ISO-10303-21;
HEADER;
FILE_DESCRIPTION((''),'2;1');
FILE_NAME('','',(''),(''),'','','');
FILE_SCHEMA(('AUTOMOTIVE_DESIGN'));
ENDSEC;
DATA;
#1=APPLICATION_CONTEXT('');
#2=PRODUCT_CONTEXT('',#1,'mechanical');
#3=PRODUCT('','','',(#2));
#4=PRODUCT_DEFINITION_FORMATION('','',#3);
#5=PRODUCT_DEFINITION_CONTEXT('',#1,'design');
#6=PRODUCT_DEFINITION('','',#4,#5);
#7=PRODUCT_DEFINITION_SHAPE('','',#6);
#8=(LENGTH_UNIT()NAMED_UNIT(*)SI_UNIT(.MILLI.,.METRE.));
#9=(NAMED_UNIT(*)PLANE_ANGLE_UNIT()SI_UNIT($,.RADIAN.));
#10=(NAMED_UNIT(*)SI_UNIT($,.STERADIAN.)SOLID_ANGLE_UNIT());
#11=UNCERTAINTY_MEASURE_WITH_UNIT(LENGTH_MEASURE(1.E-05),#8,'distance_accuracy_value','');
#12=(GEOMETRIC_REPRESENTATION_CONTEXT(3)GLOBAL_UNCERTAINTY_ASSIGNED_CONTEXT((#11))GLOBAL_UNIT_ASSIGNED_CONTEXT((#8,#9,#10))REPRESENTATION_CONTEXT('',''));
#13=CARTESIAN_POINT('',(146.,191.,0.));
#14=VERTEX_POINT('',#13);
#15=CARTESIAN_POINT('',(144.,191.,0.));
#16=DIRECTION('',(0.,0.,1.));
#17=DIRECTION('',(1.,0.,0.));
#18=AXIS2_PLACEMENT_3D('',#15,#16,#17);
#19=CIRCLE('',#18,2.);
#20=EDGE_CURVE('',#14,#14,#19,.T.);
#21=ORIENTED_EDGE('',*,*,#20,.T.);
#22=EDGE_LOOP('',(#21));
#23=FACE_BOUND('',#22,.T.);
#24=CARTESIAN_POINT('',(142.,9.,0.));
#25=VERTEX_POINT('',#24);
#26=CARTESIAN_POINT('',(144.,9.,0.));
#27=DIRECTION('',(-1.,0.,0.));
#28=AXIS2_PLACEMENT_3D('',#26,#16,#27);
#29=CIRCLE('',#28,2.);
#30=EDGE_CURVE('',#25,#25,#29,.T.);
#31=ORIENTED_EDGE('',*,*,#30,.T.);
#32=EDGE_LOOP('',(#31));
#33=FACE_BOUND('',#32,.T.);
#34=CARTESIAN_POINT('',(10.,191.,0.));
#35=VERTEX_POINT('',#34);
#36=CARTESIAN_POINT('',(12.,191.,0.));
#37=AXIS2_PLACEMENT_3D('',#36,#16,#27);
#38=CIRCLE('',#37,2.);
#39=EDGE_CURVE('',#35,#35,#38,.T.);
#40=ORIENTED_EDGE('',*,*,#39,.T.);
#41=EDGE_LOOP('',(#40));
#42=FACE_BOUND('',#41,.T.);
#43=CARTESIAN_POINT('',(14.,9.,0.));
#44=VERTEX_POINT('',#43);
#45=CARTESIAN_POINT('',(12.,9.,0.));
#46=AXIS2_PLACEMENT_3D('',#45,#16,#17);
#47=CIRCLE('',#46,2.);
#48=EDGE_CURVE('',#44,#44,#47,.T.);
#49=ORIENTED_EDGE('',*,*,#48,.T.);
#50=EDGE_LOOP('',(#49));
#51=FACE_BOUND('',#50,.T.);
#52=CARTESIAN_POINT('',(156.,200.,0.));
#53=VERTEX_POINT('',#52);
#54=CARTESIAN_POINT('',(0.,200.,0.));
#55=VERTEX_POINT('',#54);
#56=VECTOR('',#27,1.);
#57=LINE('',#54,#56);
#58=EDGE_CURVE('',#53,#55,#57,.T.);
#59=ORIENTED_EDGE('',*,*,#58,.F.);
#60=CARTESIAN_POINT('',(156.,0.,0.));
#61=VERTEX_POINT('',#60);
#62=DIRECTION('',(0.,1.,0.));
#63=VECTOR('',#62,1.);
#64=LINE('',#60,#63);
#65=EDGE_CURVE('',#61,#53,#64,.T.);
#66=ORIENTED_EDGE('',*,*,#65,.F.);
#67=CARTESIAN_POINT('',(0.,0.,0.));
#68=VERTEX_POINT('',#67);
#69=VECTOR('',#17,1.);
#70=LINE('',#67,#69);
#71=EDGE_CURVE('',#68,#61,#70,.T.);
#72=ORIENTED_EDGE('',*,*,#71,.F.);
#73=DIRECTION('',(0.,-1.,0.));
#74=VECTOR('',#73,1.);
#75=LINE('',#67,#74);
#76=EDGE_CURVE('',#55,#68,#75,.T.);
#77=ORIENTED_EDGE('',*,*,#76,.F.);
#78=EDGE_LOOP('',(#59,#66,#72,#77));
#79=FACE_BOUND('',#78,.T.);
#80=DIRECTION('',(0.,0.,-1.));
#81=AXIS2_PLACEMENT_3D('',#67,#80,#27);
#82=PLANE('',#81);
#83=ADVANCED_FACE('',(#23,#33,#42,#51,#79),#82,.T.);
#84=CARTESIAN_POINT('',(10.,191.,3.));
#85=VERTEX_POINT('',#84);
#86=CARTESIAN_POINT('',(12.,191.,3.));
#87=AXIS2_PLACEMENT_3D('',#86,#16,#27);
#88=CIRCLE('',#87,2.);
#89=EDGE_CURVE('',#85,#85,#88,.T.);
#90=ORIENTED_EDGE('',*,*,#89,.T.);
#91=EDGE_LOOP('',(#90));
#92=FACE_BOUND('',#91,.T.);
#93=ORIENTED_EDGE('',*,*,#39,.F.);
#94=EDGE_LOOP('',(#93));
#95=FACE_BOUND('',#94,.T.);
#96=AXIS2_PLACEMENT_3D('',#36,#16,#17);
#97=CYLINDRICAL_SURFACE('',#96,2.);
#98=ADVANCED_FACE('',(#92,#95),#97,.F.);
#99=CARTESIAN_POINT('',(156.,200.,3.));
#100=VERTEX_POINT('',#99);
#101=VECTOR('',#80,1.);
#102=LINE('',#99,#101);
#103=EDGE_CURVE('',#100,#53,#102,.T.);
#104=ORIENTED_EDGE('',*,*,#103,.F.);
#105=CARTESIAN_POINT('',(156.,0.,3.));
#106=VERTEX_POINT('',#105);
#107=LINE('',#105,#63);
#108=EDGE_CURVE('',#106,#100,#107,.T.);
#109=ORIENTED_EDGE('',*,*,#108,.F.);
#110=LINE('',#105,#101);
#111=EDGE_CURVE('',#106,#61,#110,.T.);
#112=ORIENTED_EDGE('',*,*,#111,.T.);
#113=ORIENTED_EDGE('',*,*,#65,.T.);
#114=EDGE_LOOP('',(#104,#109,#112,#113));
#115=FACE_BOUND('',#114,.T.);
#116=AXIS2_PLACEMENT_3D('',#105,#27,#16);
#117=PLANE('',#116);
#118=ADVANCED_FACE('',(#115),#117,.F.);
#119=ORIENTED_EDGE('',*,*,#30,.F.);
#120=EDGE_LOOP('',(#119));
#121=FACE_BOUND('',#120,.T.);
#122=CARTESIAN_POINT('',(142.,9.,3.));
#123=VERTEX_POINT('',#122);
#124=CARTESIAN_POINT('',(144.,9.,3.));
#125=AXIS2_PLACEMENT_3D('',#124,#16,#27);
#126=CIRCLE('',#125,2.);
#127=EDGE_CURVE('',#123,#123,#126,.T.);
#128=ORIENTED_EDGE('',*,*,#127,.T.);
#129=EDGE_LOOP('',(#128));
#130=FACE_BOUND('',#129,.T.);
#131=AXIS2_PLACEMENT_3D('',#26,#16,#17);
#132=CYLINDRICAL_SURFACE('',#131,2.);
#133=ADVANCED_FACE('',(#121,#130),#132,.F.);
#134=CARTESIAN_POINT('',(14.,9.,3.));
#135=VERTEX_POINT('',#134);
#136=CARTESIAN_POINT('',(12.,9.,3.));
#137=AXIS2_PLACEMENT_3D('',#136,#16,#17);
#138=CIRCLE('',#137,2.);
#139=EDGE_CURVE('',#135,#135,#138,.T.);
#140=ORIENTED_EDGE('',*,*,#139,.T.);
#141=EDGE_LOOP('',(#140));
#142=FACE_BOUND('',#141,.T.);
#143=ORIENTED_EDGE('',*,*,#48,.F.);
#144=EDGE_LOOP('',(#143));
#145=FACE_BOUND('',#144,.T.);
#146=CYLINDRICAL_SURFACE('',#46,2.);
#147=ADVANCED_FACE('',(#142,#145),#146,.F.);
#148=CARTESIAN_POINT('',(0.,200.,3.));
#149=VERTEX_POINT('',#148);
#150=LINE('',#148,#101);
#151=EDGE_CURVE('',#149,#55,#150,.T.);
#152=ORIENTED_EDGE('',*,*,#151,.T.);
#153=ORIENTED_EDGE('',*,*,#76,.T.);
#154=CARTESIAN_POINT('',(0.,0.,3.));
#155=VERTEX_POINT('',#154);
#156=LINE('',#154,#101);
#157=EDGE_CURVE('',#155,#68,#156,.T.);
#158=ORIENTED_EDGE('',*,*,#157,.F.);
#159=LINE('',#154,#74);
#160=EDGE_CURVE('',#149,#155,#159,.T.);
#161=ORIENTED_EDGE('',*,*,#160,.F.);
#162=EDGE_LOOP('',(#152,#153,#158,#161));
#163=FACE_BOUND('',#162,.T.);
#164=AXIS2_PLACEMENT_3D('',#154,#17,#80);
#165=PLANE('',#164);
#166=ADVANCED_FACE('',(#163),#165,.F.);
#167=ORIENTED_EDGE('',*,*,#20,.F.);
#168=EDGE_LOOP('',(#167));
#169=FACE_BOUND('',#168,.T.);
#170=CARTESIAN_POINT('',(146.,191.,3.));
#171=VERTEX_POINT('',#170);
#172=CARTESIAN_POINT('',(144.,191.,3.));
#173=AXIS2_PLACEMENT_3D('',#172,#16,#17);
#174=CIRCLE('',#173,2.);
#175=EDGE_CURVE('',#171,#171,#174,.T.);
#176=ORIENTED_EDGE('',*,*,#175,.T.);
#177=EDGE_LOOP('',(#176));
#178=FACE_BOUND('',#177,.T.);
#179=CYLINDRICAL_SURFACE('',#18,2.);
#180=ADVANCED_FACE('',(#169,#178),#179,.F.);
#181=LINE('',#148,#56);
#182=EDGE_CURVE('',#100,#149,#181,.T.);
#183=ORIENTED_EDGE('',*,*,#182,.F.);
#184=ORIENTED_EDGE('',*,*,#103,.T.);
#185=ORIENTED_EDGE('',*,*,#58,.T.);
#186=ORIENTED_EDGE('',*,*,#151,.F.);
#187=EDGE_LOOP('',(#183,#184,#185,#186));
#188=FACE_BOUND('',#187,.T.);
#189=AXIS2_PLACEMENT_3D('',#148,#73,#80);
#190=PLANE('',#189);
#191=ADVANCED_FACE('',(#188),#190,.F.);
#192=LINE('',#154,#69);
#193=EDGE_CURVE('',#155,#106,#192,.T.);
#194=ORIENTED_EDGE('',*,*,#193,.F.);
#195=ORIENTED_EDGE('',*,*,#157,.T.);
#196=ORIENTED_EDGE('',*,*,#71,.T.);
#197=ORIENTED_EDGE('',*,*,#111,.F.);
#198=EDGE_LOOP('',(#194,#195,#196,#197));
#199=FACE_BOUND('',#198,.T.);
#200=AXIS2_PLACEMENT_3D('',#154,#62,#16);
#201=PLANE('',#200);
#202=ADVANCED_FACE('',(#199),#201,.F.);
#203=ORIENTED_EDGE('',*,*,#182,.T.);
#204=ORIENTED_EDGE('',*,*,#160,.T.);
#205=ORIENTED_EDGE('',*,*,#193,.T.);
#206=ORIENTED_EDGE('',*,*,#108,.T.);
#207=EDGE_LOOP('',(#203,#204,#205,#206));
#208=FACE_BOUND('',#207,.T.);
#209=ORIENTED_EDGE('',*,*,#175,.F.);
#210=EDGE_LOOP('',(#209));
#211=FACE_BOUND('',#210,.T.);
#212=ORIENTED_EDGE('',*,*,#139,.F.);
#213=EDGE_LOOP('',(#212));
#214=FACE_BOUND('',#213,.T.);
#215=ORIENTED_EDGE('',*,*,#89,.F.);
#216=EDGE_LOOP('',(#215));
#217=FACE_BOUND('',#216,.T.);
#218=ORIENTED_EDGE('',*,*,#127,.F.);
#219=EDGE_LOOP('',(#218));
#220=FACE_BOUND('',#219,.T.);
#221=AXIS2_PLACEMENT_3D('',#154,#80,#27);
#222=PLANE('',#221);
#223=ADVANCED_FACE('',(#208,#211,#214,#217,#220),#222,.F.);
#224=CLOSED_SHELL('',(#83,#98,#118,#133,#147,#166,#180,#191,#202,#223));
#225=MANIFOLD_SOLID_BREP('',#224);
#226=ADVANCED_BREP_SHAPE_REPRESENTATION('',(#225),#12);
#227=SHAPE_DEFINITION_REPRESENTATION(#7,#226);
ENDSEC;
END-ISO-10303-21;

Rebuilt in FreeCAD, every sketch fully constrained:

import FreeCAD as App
import Part
import Sketcher
Q = App.Units.Quantity


def add_polygon(sketch, points):
    """Adds a closed chain of lines whose ends are joined by coincident constraints."""
    first, n = sketch.GeometryCount, len(points)
    for a, b in zip(points, points[1:] + points[:1]):
        sketch.addGeometry(Part.LineSegment(App.Vector(*a, 0), App.Vector(*b, 0)), False)
    for i in range(n):
        sketch.addConstraint(Sketcher.Constraint("Coincident", first + i, 2, first + (i + 1) % n, 1))

doc = App.newDocument("Part")
body = doc.addObject("PartDesign::Body", "Body")

sketch1 = body.newObject("Sketcher::SketchObject", "Sketch")
sketch1.AttachmentSupport = (doc.getObject("XY_Plane"), [""])
sketch1.MapMode = "FlatFace"
add_polygon(sketch1, [(0, 200), (0, 0), (156, 0), (156, 200)])
sketch1.addConstraint(Sketcher.Constraint("Vertical", 0))
sketch1.addConstraint(Sketcher.Constraint("Horizontal", 1))
sketch1.addConstraint(Sketcher.Constraint("Vertical", 2))
sketch1.addConstraint(Sketcher.Constraint("Horizontal", 3))
sketch1.addConstraint(Sketcher.Constraint("Coincident", 0, 2, -1, 1))
sketch1.addConstraint(Sketcher.Constraint("DistanceX", 1, 1, 1, 2, Q("156 mm")))
sketch1.addConstraint(Sketcher.Constraint("DistanceY", 0, 2, 0, 1, Q("200 mm")))
pad1 = body.newObject("PartDesign::Pad", "Pad")
pad1.Profile = sketch1
pad1.Length = 3

sketch2 = body.newObject("Sketcher::SketchObject", "Sketch001")
sketch2.AttachmentSupport = (doc.getObject("XY_Plane"), [""])
sketch2.MapMode = "FlatFace"
sketch2.AttachmentOffset = App.Placement(App.Vector(0, 0, 3), App.Rotation())
sketch2.addGeometry(Part.Circle(App.Vector(12, 9, 0), App.Vector(0, 0, 1), 2), False)
sketch2.addGeometry(Part.Circle(App.Vector(144, 9, 0), App.Vector(0, 0, 1), 2), False)
sketch2.addGeometry(Part.Circle(App.Vector(144, 191, 0), App.Vector(0, 0, 1), 2), False)
sketch2.addGeometry(Part.Circle(App.Vector(12, 191, 0), App.Vector(0, 0, 1), 2), False)
sketch2.addConstraint(Sketcher.Constraint("Equal", 0, 1))
sketch2.addConstraint(Sketcher.Constraint("Equal", 1, 2))
sketch2.addConstraint(Sketcher.Constraint("Equal", 2, 3))
sketch2.addConstraint(Sketcher.Constraint("Horizontal", 0, 3, 1, 3))
sketch2.addConstraint(Sketcher.Constraint("Horizontal", 2, 3, 3, 3))
sketch2.addConstraint(Sketcher.Constraint("Vertical", 1, 3, 2, 3))
sketch2.addConstraint(Sketcher.Constraint("Vertical", 0, 3, 3, 3))
sketch2.addConstraint(Sketcher.Constraint("Diameter", 0, Q("4 mm")))
sketch2.addConstraint(Sketcher.Constraint("DistanceX", -1, 1, 0, 3, Q("12 mm")))
sketch2.addConstraint(Sketcher.Constraint("DistanceY", -1, 1, 0, 3, Q("9 mm")))
sketch2.addConstraint(Sketcher.Constraint("DistanceX", -1, 1, 1, 3, Q("144 mm")))
sketch2.addConstraint(Sketcher.Constraint("DistanceY", -1, 1, 2, 3, Q("191 mm")))
pocket1 = body.newObject("PartDesign::Pocket", "Pocket")
pocket1.Profile = sketch2
pocket1.Length = 3

doc.recompute()
